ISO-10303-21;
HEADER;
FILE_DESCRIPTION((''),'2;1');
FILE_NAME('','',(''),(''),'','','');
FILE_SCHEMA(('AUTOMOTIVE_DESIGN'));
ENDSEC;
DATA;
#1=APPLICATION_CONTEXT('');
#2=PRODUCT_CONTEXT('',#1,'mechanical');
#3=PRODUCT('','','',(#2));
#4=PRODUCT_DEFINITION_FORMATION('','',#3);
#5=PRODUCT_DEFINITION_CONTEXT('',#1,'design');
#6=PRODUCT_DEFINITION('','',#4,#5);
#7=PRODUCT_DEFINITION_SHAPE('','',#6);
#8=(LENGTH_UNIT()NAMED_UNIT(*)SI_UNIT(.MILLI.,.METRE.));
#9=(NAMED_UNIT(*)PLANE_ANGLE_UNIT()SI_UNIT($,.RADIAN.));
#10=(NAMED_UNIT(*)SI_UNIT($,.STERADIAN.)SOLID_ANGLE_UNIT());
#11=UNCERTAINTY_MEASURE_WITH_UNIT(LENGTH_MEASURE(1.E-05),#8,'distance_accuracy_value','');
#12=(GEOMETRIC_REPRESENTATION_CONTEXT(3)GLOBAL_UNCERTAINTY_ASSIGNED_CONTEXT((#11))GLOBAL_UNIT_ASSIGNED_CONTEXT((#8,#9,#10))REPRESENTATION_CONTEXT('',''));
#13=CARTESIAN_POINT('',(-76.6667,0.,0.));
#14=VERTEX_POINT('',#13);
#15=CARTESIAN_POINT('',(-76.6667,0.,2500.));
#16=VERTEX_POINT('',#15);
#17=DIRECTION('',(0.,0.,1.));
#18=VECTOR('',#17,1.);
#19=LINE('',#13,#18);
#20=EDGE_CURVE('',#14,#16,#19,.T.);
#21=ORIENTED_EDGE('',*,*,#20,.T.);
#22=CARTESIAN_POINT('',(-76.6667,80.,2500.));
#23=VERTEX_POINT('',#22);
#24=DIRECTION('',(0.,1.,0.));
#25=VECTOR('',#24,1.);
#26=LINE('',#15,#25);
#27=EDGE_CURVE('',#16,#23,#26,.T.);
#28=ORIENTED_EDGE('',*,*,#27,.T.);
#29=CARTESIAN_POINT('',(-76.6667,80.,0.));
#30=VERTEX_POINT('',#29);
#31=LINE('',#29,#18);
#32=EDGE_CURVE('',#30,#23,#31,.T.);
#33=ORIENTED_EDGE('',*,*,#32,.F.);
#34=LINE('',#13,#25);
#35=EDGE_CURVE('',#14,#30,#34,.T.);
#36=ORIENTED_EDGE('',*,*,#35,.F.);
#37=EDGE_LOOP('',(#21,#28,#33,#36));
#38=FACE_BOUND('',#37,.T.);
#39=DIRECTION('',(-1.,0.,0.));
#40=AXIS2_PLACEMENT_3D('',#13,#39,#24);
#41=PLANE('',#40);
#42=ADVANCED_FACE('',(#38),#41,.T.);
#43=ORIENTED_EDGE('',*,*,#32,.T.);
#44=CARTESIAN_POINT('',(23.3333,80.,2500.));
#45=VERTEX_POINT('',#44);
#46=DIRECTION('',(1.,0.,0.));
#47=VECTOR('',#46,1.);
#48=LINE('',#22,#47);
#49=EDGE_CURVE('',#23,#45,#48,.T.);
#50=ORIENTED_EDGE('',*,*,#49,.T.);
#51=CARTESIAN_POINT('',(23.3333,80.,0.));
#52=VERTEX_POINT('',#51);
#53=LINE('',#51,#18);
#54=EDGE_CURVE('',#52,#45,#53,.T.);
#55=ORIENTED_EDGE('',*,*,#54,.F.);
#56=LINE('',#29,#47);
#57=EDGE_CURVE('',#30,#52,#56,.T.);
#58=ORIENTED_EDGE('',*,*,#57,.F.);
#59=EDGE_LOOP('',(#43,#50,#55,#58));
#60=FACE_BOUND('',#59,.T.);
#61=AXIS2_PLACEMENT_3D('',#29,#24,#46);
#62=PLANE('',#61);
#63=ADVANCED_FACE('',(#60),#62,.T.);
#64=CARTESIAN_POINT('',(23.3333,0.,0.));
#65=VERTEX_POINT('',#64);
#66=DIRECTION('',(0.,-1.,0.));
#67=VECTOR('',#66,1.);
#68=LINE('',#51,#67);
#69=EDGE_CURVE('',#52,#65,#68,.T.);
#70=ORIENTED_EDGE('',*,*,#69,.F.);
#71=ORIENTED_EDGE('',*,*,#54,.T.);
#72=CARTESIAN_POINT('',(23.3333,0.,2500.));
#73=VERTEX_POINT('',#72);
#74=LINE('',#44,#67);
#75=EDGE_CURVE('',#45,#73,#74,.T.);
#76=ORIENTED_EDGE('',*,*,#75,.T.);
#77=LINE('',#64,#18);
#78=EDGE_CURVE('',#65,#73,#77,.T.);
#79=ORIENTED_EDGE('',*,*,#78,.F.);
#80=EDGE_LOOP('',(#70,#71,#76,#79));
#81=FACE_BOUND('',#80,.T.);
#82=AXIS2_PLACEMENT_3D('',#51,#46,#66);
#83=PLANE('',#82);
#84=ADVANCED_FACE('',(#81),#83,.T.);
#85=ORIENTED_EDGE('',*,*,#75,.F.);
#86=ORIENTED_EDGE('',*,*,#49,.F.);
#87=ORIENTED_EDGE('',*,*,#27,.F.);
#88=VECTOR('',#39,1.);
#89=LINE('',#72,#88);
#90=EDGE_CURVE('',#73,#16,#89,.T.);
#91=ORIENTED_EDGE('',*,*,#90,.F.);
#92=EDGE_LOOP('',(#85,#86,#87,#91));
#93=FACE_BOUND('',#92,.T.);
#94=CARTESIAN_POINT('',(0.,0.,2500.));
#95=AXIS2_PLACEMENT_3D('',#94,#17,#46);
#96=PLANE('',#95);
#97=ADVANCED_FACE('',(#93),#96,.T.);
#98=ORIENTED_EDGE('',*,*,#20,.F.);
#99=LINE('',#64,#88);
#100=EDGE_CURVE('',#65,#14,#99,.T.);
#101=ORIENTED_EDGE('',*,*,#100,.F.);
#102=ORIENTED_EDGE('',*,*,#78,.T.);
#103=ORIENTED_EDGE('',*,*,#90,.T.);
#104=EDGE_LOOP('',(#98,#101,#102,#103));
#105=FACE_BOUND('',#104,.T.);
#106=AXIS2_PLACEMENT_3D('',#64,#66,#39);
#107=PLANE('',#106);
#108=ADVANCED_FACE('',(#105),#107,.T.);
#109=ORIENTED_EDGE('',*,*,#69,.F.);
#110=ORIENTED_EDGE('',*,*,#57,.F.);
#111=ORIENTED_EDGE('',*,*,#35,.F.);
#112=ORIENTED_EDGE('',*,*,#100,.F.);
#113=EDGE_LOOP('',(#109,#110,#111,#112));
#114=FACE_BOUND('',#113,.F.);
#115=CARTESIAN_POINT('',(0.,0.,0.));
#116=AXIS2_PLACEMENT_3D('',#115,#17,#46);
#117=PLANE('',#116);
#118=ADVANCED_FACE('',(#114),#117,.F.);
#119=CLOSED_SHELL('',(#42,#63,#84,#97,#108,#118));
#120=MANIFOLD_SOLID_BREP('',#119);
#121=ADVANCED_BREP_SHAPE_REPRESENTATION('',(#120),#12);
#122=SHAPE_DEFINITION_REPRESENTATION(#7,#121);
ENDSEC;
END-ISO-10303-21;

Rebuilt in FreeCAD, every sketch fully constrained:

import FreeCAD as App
import Part
import Sketcher
Q = App.Units.Quantity

doc = App.newDocument("Part")
params = doc.addObject("Spreadsheet::Sheet", "Params")
for row, (alias, value) in enumerate([
    ("sketch1_width", "3.937 in"),
    ("pad1_length", "98.4251969 in"),
], start=1):
    params.set(f"A{row}", alias)
    params.set(f"B{row}", "=" + value)
    params.setAlias(f"B{row}", alias)

body = doc.addObject("PartDesign::Body", "Body")

sketch1 = body.newObject("Sketcher::SketchObject", "Sketch")
sketch1.AttachmentSupport = (doc.getObject("XY_Plane"), [""])
sketch1.MapMode = "FlatFace"
sketch1.addGeometry([
    Part.LineSegment(App.Vector(-76.6667, 0, 0), App.Vector(23.3333, 0, 0)),
    Part.LineSegment(App.Vector(23.3333, 0, 0), App.Vector(23.3333, 80, 0)),
    Part.LineSegment(App.Vector(23.3333, 80, 0), App.Vector(-76.6667, 80, 0)),
    Part.LineSegment(App.Vector(-76.6667, 80, 0), App.Vector(-76.6667, 0, 0)),
], False)
sketch1.addConstraint([
    Sketcher.Constraint("Coincident", 0, 2, 1, 1),
    Sketcher.Constraint("Coincident", 1, 2, 2, 1),
    Sketcher.Constraint("Coincident", 2, 2, 3, 1),
    Sketcher.Constraint("Coincident", 3, 2, 0, 1),
    Sketcher.Constraint("Horizontal", 0),
    Sketcher.Constraint("Vertical", 1),
    Sketcher.Constraint("Horizontal", 2),
    Sketcher.Constraint("Vertical", 3),
    Sketcher.Constraint("PointOnObject", 0, 2, -1),
    Sketcher.Constraint("DistanceX", 0, 1, 0, 2, Q("3.937 in")),
    Sketcher.Constraint("DistanceY", 1, 1, 1, 2, Q("3.1496 in")),
    Sketcher.Constraint("DistanceX", -1, 1, 0, 2, 23.3333),
])
sketch1.setExpression("Constraints[9]", "Params.sketch1_width")
pad1 = body.newObject("PartDesign::Pad", "Pad")
pad1.Profile = sketch1
pad1.setExpression("Length", "Params.pad1_length")

doc.recompute()
